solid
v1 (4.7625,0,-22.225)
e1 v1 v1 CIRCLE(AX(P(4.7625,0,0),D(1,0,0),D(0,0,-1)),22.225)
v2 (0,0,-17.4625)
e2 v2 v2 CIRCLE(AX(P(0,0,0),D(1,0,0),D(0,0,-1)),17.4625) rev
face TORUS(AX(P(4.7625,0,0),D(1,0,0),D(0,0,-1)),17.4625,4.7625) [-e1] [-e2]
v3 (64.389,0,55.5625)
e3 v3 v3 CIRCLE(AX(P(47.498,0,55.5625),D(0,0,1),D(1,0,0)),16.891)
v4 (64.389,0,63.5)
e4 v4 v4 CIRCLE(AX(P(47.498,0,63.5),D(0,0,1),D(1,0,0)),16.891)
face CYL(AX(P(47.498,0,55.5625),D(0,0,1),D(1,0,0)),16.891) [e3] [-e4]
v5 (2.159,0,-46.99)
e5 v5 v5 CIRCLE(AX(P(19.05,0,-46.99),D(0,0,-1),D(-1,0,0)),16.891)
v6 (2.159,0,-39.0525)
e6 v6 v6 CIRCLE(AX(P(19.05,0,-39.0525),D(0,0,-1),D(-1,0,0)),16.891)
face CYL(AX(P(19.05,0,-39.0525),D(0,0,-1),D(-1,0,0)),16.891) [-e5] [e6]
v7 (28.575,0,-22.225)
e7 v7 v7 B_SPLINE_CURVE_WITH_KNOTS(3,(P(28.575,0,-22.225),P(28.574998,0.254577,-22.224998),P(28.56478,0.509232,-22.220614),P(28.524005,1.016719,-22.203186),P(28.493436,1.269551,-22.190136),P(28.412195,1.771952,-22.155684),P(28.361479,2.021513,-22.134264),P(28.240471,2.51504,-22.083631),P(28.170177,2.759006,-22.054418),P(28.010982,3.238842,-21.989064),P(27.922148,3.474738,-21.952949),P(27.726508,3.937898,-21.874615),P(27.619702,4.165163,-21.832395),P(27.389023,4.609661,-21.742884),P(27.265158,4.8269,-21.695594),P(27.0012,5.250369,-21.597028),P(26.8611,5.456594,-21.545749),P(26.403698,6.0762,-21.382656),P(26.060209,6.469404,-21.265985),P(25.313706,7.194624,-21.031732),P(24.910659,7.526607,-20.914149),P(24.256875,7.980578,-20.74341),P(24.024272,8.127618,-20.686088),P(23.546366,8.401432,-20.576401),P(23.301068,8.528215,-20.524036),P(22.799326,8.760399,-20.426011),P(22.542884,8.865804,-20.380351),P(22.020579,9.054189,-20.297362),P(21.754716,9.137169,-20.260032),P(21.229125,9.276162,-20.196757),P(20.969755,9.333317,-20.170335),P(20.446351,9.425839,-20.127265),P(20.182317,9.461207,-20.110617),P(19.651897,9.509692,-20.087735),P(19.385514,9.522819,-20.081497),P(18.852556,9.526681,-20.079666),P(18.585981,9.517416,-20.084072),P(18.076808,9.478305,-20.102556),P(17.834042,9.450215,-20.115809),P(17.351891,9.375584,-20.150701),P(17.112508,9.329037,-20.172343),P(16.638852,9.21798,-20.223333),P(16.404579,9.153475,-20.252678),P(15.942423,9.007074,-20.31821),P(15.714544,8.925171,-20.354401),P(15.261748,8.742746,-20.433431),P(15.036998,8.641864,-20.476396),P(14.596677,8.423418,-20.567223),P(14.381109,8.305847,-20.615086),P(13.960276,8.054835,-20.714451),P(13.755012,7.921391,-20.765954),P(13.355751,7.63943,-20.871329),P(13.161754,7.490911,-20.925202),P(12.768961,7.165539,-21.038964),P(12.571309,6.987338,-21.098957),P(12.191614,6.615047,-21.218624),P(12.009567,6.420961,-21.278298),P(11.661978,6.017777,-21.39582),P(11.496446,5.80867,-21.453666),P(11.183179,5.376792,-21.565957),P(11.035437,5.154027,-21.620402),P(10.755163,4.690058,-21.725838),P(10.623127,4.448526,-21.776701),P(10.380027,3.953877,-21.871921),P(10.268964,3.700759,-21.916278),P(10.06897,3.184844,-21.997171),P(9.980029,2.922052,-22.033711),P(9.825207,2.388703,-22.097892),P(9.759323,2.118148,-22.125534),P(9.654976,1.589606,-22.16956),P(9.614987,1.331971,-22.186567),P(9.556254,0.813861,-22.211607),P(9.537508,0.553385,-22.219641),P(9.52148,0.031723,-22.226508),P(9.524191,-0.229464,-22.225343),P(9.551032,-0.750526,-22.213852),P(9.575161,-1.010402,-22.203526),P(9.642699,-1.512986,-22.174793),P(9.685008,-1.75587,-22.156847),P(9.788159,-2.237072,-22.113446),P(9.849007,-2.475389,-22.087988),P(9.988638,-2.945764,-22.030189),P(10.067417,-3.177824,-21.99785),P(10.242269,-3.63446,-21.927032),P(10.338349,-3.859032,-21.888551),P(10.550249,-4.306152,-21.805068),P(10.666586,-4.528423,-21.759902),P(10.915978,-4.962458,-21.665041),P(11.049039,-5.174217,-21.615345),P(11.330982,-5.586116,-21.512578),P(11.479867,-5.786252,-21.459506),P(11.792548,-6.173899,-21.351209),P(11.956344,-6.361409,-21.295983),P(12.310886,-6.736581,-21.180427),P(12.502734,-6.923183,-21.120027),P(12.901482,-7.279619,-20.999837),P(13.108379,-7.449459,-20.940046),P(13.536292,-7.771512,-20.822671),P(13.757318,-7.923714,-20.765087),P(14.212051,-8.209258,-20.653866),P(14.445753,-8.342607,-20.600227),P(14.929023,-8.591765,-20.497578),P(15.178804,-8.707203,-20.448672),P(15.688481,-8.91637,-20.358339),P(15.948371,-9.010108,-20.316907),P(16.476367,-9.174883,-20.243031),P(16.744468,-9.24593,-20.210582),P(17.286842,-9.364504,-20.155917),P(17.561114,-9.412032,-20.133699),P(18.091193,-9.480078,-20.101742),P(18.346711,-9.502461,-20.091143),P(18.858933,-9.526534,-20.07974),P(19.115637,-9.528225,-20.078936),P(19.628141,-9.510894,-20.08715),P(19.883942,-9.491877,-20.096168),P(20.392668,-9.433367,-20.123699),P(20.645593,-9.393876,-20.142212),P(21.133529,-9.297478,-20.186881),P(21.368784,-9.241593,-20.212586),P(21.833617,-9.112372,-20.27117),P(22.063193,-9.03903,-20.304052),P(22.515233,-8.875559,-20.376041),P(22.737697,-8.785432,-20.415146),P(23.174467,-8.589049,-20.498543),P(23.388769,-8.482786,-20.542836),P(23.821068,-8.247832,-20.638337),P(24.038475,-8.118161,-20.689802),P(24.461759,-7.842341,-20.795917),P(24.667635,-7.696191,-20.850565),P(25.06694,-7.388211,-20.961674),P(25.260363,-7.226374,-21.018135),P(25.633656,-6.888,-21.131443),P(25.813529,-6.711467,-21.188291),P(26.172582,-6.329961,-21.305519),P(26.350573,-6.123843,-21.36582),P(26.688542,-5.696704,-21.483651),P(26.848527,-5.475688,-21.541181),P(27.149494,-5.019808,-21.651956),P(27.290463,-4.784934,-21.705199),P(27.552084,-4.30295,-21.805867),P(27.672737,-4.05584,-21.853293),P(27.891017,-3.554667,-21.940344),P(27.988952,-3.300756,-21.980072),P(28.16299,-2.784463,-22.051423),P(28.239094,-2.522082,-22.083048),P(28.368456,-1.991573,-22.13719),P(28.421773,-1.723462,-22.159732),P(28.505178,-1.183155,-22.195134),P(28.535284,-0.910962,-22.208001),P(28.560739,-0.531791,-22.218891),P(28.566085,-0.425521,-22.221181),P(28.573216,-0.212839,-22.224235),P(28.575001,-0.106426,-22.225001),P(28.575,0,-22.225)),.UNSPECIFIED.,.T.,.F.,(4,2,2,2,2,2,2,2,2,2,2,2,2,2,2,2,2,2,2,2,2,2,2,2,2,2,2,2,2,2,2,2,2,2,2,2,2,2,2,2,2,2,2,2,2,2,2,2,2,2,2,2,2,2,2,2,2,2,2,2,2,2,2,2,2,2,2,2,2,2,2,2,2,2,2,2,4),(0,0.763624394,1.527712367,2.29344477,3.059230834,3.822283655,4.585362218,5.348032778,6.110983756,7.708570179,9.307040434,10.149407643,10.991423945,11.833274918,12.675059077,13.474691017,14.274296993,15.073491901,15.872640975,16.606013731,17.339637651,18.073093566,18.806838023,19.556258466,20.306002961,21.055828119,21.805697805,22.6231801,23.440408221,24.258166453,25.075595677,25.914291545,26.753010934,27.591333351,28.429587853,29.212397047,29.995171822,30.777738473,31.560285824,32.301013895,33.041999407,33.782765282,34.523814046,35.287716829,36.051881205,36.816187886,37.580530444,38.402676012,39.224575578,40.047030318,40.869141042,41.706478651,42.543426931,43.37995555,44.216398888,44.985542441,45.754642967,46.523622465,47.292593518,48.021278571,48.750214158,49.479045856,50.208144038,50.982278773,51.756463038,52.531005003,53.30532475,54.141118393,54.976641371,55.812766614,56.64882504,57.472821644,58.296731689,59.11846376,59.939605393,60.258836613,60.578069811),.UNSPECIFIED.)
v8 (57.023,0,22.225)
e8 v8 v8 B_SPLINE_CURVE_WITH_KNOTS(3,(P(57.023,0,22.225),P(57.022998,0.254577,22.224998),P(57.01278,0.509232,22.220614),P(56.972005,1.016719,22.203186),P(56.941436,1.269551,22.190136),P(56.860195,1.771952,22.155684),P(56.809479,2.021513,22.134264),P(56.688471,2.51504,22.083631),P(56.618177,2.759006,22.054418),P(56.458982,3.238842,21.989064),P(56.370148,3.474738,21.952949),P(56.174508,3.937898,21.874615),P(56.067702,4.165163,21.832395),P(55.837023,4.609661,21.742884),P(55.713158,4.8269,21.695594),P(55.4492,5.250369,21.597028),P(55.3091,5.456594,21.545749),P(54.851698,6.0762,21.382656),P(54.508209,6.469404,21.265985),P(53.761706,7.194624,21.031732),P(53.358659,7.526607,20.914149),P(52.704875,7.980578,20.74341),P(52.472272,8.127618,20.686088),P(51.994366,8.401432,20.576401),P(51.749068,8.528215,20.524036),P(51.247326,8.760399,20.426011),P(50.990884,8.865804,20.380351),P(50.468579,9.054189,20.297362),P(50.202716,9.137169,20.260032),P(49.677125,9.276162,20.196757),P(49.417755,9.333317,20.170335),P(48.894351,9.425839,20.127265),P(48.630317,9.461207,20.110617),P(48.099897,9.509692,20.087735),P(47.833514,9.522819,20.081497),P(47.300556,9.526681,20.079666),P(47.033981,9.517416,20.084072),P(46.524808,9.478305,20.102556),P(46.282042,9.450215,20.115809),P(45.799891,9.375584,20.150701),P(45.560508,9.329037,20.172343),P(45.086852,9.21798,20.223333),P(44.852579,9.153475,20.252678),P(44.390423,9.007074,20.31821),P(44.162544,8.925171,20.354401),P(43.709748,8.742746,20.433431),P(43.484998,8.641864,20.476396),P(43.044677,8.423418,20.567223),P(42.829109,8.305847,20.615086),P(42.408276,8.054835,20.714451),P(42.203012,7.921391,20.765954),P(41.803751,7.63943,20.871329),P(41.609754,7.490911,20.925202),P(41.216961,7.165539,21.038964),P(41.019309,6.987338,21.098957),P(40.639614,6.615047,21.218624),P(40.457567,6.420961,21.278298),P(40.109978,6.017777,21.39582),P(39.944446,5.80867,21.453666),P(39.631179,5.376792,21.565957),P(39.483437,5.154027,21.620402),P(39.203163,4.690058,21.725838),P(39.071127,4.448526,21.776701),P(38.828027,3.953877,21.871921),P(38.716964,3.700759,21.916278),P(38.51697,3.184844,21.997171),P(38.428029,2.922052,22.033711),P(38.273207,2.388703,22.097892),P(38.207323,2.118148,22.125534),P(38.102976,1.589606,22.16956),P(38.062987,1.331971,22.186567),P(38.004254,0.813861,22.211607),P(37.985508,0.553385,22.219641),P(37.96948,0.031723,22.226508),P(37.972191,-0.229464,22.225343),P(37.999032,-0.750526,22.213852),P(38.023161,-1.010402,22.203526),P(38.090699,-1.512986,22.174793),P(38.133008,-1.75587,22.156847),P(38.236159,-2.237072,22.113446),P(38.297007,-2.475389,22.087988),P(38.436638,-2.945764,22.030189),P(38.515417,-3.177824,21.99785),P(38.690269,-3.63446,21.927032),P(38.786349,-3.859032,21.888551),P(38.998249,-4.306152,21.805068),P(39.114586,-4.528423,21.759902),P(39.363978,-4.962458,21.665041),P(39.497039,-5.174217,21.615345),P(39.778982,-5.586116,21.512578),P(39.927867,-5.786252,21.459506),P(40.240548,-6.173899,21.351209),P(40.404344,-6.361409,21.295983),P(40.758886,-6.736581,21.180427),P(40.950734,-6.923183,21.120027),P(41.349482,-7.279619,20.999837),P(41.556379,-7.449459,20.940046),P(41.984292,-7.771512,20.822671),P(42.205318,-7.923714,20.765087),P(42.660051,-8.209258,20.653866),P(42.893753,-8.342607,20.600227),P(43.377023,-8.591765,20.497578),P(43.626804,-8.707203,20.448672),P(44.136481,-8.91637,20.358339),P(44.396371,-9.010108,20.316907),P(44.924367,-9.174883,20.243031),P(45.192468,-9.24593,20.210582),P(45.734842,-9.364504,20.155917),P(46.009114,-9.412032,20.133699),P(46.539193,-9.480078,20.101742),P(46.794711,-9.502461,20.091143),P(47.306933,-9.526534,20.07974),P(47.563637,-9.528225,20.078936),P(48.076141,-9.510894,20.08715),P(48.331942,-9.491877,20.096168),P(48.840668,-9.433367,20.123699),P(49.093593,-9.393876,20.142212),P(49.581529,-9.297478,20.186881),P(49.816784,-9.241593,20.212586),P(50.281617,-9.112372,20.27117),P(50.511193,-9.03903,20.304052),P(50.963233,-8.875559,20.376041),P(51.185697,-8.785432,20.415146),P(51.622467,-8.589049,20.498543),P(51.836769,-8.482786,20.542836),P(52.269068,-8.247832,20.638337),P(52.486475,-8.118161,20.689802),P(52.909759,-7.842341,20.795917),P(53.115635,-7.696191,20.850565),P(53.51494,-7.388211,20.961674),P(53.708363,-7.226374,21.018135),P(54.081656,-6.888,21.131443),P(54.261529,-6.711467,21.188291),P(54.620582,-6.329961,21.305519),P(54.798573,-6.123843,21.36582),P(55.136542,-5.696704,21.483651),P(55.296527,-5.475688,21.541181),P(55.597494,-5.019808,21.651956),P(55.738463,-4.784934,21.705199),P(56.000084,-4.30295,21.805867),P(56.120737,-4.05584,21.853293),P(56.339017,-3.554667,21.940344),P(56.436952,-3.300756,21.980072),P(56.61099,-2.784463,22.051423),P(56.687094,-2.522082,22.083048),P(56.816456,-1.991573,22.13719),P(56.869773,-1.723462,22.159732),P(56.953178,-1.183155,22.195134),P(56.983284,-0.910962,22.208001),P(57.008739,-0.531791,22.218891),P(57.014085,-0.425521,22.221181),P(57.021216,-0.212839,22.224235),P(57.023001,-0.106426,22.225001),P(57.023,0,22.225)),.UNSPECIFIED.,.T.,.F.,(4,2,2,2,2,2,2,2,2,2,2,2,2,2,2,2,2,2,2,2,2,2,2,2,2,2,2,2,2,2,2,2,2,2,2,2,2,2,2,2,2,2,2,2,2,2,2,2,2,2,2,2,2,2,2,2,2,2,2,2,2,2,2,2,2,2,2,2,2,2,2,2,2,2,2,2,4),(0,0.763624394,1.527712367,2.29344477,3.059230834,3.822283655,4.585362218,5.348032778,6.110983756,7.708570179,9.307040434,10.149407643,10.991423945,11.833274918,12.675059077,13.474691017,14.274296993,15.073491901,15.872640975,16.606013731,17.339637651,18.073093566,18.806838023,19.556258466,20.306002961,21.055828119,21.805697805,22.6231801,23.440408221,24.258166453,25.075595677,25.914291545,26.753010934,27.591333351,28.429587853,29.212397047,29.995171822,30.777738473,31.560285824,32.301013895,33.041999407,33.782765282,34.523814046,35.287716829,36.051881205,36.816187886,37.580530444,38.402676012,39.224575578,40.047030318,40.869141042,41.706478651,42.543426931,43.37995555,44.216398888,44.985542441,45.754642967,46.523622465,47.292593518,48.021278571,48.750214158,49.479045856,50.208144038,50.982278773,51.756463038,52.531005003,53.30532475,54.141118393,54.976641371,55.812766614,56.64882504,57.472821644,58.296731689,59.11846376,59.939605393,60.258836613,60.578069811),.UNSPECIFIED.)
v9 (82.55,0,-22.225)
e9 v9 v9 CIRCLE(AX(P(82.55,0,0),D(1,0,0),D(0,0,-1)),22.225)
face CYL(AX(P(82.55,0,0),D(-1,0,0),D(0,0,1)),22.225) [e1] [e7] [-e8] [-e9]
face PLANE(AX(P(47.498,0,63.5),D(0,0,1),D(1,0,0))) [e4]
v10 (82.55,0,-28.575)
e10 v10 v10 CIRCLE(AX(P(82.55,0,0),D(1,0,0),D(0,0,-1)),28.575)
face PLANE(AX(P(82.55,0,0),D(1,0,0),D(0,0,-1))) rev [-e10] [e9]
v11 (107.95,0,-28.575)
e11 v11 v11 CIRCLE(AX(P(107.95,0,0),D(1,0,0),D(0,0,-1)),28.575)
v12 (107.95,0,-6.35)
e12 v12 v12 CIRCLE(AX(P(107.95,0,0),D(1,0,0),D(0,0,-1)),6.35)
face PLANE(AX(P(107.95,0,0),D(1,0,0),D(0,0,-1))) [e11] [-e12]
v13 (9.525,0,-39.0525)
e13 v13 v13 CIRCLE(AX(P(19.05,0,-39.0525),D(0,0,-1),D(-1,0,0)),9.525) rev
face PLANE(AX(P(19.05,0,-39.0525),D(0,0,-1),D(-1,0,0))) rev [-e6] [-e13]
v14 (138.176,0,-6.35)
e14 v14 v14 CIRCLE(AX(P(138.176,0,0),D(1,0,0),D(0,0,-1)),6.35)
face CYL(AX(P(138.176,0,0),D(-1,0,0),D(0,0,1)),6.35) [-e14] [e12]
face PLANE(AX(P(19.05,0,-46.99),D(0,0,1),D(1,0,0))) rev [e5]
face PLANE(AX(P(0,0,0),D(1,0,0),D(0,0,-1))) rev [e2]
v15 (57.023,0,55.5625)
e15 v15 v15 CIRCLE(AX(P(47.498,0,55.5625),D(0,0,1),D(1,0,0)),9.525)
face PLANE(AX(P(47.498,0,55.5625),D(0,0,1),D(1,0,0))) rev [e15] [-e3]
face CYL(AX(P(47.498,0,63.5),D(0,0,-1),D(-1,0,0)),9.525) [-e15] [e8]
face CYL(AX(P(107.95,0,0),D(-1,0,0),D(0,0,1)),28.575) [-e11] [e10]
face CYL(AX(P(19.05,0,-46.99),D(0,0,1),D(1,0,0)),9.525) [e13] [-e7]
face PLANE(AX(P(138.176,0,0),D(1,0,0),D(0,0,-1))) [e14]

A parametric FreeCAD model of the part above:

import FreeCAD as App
import Part
import Sketcher
from FreeCAD import Vector
Q = App.Units.Quantity


def edges_at(feature, points):
    """Names of the edges that pass closest to the given points."""
    edges = feature.Shape.Edges
    near = lambda p: min(range(len(edges)), key=lambda i: edges[i].distToShape(Part.Vertex(*p))[0])
    return sorted({f"Edge{near(p) + 1}" for p in points})

doc = App.newDocument("Part")
body = doc.addObject("PartDesign::Body", "Body")

# Sketch on YZ plane
sketch1 = body.newObject("Sketcher::SketchObject", "Sketch")
sketch1.AttachmentSupport = (doc.getObject("YZ_Plane"), [""])
sketch1.MapMode = "FlatFace"
sketch1.addGeometry(Part.Circle(Vector(0, 0, 0), Vector(0, 0, 1), 22.225), False)
sketch1.addConstraint(Sketcher.Constraint("Coincident", 0, 3, -1, 1))
sketch1.addConstraint(Sketcher.Constraint("Diameter", 0, Q("1.75 in")))
pad1 = body.newObject("PartDesign::Pad", "Pad")
pad1.Profile = sketch1
pad1.Length = Q("3.25 in")

# Sketch on XY plane
sketch2 = body.newObject("Sketcher::SketchObject", "Sketch001")
sketch2.AttachmentSupport = (doc.getObject("XY_Plane"), [""])
sketch2.MapMode = "FlatFace"
sketch2.addGeometry(Part.Circle(Vector(47.498, 0, 0), Vector(0, 0, 1), 9.525), False)
sketch2.addConstraint(Sketcher.Constraint("PointOnObject", 0, 3, -1))
sketch2.addConstraint(Sketcher.Constraint("Diameter", 0, Q("0.75 in")))
sketch2.addConstraint(Sketcher.Constraint("DistanceX", -1, 1, 0, 3, Q("1.87 in")))
pad2 = body.newObject("PartDesign::Pad", "Pad001")
pad2.Profile = sketch2
pad2.Length = Q("2.5 in")

# Sketch on XY plane
sketch3 = body.newObject("Sketcher::SketchObject", "Sketch002")
sketch3.AttachmentSupport = (doc.getObject("XY_Plane"), [""])
sketch3.MapMode = "FlatFace"
sketch3.addGeometry(Part.Circle(Vector(19.05, 0, 0), Vector(0, 0, 1), 9.525), False)
sketch3.addConstraint(Sketcher.Constraint("PointOnObject", 0, 3, -1))
sketch3.addConstraint(Sketcher.Constraint("Diameter", 0, Q("0.75 in")))
sketch3.addConstraint(Sketcher.Constraint("DistanceX", -1, 1, 0, 3, Q("0.75 in")))
pad3 = body.newObject("PartDesign::Pad", "Pad002")
pad3.Profile = sketch3
pad3.Length = Q("1.85 in")
pad3.Reversed = True

# Sketch on XY plane
sketch4 = body.newObject("Sketcher::SketchObject", "Sketch003")
sketch4.AttachmentSupport = (doc.getObject("XY_Plane"), [""])
sketch4.MapMode = "FlatFace"
sketch4.AttachmentOffset = App.Placement(Vector(0, 0, -1.85 * 25.4), App.Rotation())
sketch4.addGeometry(Part.Circle(Vector(19.05, 0, 0), Vector(0, 0, 1), 16.891), False)
sketch4.addConstraint(Sketcher.Constraint("PointOnObject", 0, 3, -1))
sketch4.addConstraint(Sketcher.Constraint("Diameter", 0, Q("1.33 in")))
sketch4.addConstraint(Sketcher.Constraint("DistanceX", -1, 1, 0, 3, Q("0.75 in")))
pad4 = body.newObject("PartDesign::Pad", "Pad003")
pad4.Profile = sketch4
pad4.Length = Q("0.3125 in")

# Sketch on XY plane
sketch5 = body.newObject("Sketcher::SketchObject", "Sketch004")
sketch5.AttachmentSupport = (doc.getObject("XY_Plane"), [""])
sketch5.MapMode = "FlatFace"
sketch5.AttachmentOffset = App.Placement(Vector(0, 0, 2.5 * 25.4), App.Rotation())
sketch5.addGeometry(Part.Circle(Vector(47.498, 0, 0), Vector(0, 0, 1), 16.891), False)
sketch5.addConstraint(Sketcher.Constraint("PointOnObject", 0, 3, -1))
sketch5.addConstraint(Sketcher.Constraint("Diameter", 0, Q("1.33 in")))
sketch5.addConstraint(Sketcher.Constraint("DistanceX", -1, 1, 0, 3, Q("1.87 in")))
pad5 = body.newObject("PartDesign::Pad", "Pad004")
pad5.Profile = sketch5
pad5.Length = Q("0.3125 in")
pad5.Reversed = True

# Sketch on YZ plane
sketch6 = body.newObject("Sketcher::SketchObject", "Sketch005")
sketch6.AttachmentSupport = (doc.getObject("YZ_Plane"), [""])
sketch6.MapMode = "FlatFace"
sketch6.AttachmentOffset = App.Placement(Vector(0, 0, 3.25 * 25.4), App.Rotation())
sketch6.addGeometry(Part.Circle(Vector(0, 0, 0), Vector(0, 0, 1), 28.575), False)
sketch6.addConstraint(Sketcher.Constraint("Coincident", 0, 3, -1, 1))
sketch6.addConstraint(Sketcher.Constraint("Diameter", 0, Q("2.25 in")))
pad6 = body.newObject("PartDesign::Pad", "Pad005")
pad6.Profile = sketch6
pad6.Length = Q("1 in")

# Sketch on YZ plane
sketch7 = body.newObject("Sketcher::SketchObject", "Sketch006")
sketch7.AttachmentSupport = (doc.getObject("YZ_Plane"), [""])
sketch7.MapMode = "FlatFace"
sketch7.AttachmentOffset = App.Placement(Vector(0, 0, 4.25 * 25.4), App.Rotation())
sketch7.addGeometry(Part.Circle(Vector(0, 0, 0), Vector(0, 0, 1), 6.35), False)
sketch7.addConstraint(Sketcher.Constraint("Coincident", 0, 3, -1, 1))
sketch7.addConstraint(Sketcher.Constraint("Diameter", 0, Q("0.5 in")))
pad7 = body.newObject("PartDesign::Pad", "Pad006")
pad7.Profile = sketch7
pad7.Length = Q("1.19 in")
doc.recompute()

fillet = body.newObject("PartDesign::Fillet", "Fillet")
fillet.Base = (pad7, edges_at(pad7, [(0, 0, 22.225)]))
fillet.Radius = Q("0.1875 in")

doc.recompute()
